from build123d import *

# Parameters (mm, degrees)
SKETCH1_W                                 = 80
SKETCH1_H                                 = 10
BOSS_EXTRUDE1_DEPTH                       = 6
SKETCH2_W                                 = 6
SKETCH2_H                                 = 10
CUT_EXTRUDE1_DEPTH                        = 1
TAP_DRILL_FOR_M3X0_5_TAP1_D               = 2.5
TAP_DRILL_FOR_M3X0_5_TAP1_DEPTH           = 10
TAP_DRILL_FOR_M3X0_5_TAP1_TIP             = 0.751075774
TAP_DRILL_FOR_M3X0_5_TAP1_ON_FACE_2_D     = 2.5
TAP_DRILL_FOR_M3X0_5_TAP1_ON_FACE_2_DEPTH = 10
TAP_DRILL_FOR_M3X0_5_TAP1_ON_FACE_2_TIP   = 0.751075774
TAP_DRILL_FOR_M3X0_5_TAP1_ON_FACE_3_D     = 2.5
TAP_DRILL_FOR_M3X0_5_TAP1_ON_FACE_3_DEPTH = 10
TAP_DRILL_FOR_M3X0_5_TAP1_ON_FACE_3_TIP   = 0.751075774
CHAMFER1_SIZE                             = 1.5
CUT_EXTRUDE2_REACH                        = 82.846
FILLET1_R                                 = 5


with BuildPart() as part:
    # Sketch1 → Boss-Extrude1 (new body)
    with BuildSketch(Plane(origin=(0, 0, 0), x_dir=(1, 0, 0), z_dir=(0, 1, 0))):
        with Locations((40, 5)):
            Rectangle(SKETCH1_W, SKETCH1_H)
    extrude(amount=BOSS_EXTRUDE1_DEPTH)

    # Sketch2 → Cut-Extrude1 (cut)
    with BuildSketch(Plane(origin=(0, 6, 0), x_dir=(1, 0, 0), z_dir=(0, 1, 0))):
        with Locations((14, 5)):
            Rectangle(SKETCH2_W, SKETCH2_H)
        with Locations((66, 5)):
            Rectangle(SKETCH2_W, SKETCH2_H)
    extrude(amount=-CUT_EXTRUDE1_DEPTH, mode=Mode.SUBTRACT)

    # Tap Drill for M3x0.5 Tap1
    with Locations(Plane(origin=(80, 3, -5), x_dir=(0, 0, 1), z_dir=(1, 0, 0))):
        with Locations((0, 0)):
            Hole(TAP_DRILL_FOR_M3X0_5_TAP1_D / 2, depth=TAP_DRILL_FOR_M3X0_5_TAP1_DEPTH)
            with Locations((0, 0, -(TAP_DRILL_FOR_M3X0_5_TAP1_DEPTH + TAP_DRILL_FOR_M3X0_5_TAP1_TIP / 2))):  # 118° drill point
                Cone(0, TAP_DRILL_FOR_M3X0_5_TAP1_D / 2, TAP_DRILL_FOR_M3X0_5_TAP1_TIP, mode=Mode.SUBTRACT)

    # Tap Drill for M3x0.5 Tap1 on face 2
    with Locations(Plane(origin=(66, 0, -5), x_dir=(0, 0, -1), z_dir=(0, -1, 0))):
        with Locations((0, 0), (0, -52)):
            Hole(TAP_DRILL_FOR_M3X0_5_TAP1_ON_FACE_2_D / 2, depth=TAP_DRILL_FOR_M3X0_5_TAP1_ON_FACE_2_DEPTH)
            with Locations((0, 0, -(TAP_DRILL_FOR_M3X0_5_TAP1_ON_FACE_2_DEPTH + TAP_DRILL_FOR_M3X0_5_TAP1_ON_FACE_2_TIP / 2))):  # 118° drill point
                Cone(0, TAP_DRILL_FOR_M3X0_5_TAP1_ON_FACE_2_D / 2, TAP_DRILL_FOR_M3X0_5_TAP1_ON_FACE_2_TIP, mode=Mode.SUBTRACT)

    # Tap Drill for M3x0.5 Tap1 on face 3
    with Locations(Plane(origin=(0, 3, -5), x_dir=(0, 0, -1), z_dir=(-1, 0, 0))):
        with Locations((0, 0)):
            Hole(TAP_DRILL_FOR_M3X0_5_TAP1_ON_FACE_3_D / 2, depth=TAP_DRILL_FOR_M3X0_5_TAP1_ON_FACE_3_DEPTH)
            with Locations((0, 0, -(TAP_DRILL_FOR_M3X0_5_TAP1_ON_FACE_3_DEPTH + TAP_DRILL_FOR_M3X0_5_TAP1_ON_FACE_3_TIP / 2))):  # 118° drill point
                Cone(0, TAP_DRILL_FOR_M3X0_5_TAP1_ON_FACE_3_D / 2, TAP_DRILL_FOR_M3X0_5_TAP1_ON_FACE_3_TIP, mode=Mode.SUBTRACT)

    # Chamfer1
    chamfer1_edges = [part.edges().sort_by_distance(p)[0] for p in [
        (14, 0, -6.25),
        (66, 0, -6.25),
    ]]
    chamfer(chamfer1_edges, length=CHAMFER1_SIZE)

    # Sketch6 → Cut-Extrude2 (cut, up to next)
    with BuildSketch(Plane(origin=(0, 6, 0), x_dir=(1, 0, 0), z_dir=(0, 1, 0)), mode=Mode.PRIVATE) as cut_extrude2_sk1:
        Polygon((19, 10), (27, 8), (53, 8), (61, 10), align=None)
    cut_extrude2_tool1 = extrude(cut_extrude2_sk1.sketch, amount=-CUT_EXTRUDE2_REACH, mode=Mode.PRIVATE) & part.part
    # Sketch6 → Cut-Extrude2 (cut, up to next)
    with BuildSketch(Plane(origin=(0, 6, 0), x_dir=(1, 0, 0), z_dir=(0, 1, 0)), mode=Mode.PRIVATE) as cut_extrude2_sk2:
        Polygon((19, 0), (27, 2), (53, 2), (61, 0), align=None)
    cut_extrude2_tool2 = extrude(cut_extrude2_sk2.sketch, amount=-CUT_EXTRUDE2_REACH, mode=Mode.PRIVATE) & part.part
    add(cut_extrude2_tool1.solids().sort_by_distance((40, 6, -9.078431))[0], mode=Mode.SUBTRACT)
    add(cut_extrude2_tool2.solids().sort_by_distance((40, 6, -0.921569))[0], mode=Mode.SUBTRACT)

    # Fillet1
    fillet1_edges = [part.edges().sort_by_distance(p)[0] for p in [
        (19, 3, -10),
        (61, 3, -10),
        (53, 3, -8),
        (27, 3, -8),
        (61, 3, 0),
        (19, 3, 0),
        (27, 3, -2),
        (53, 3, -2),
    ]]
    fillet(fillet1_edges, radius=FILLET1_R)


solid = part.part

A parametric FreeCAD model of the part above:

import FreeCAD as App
import Part
import Sketcher
from FreeCAD import Vector
Q = App.Units.Quantity


def edges_at(feature, points):
    """Names of the edges that pass closest to the given points."""
    edges = feature.Shape.Edges
    near = lambda p: min(range(len(edges)), key=lambda i: edges[i].distToShape(Part.Vertex(*p))[0])
    return sorted({f"Edge{near(p) + 1}" for p in points})

doc = App.newDocument("Part")
params = doc.addObject("Spreadsheet::Sheet", "Params")
for row, (alias, value) in enumerate([
    ("sketch1_width", "80 mm"),
    ("sketch1_height", "10 mm"),
    ("pad1_length", "6 mm"),
    ("sketch2_width", "6 mm"),
    ("sketch2_height", "10 mm"),
    ("pocket1_length", "1 mm"),
    ("sketch3_diameter", "2.5 mm"),
    ("hole_diameter", "2.5 mm"),
    ("hole_depth", "10 mm"),
    ("sketch4_diameter", "2.5 mm"),
    ("hole2_diameter", "2.5 mm"),
    ("hole2_depth", "10 mm"),
    ("sketch5_diameter", "2.5 mm"),
    ("hole3_diameter", "2.5 mm"),
    ("hole3_depth", "10 mm"),
    ("chamfer_size", "1.5 mm"),
    ("sketch6_width", "26 mm"),
    ("sketch6_width2", "42 mm"),
    ("sketch7_width", "42 mm"),
    ("sketch7_width2", "26 mm"),
    ("fillet_radius", "5 mm"),
], start=1):
    params.set(f"A{row}", alias)
    params.set(f"B{row}", "=" + value)
    params.setAlias(f"B{row}", alias)

body = doc.addObject("PartDesign::Body", "Body")

sketch1 = doc.addObject("Sketcher::SketchObject", "Sketch")
body.addObject(sketch1)
sketch1.AttachmentSupport = (doc.XZ_Plane, [""])
sketch1.MapMode = "FlatFace"
sketch1.addGeometry(Part.LineSegment(Vector(0, -10, 0), Vector(0, 0, 0)), False)
sketch1.addGeometry(Part.LineSegment(Vector(0, 0, 0), Vector(80, 0, 0)), False)
sketch1.addGeometry(Part.LineSegment(Vector(80, 0, 0), Vector(80, -10, 0)), False)
sketch1.addGeometry(Part.LineSegment(Vector(80, -10, 0), Vector(0, -10, 0)), False)
sketch1.addConstraint(Sketcher.Constraint("Coincident", 0, 2, 1, 1))
sketch1.addConstraint(Sketcher.Constraint("Coincident", 1, 2, 2, 1))
sketch1.addConstraint(Sketcher.Constraint("Coincident", 2, 2, 3, 1))
sketch1.addConstraint(Sketcher.Constraint("Coincident", 3, 2, 0, 1))
sketch1.addConstraint(Sketcher.Constraint("Vertical", 0))
sketch1.addConstraint(Sketcher.Constraint("Horizontal", 1))
sketch1.addConstraint(Sketcher.Constraint("Vertical", 2))
sketch1.addConstraint(Sketcher.Constraint("Horizontal", 3))
sketch1.addConstraint(Sketcher.Constraint("Coincident", 0, 2, -1, 1))
sketch1.addConstraint(Sketcher.Constraint("DistanceX", 1, 1, 1, 2, Q("80 mm")))
sketch1.addConstraint(Sketcher.Constraint("DistanceY", 0, 1, 0, 2, Q("10 mm")))
sketch1.setExpression("Constraints[9]", "Params.sketch1_width")
sketch1.setExpression("Constraints[10]", "Params.sketch1_height")
pad1 = doc.addObject("PartDesign::Pad", "Pad")
body.addObject(pad1)
pad1.Profile = sketch1
pad1.setExpression("Length", "Params.pad1_length")
pad1.Reversed = True

sketch2 = doc.addObject("Sketcher::SketchObject", "Sketch001")
body.addObject(sketch2)
sketch2.AttachmentSupport = (doc.XZ_Plane, [""])
sketch2.MapMode = "FlatFace"
sketch2.AttachmentOffset = App.Placement(Vector(0, 0, -6), App.Rotation())
sketch2.addGeometry(Part.LineSegment(Vector(11, -10, 0), Vector(11, 0, 0)), False)
sketch2.addGeometry(Part.LineSegment(Vector(11, 0, 0), Vector(17, 0, 0)), False)
sketch2.addGeometry(Part.LineSegment(Vector(17, 0, 0), Vector(17, -10, 0)), False)
sketch2.addGeometry(Part.LineSegment(Vector(17, -10, 0), Vector(11, -10, 0)), False)
sketch2.addGeometry(Part.LineSegment(Vector(63, -10, 0), Vector(63, 0, 0)), False)
sketch2.addGeometry(Part.LineSegment(Vector(63, 0, 0), Vector(69, 0, 0)), False)
sketch2.addGeometry(Part.LineSegment(Vector(69, 0, 0), Vector(69, -10, 0)), False)
sketch2.addGeometry(Part.LineSegment(Vector(69, -10, 0), Vector(63, -10, 0)), False)
sketch2.addConstraint(Sketcher.Constraint("Coincident", 0, 2, 1, 1))
sketch2.addConstraint(Sketcher.Constraint("Coincident", 1, 2, 2, 1))
sketch2.addConstraint(Sketcher.Constraint("Coincident", 2, 2, 3, 1))
sketch2.addConstraint(Sketcher.Constraint("Coincident", 3, 2, 0, 1))
sketch2.addConstraint(Sketcher.Constraint("Coincident", 4, 2, 5, 1))
sketch2.addConstraint(Sketcher.Constraint("Coincident", 5, 2, 6, 1))
sketch2.addConstraint(Sketcher.Constraint("Coincident", 6, 2, 7, 1))
sketch2.addConstraint(Sketcher.Constraint("Coincident", 7, 2, 4, 1))
sketch2.addConstraint(Sketcher.Constraint("Vertical", 0))
sketch2.addConstraint(Sketcher.Constraint("Horizontal", 1))
sketch2.addConstraint(Sketcher.Constraint("Vertical", 2))
sketch2.addConstraint(Sketcher.Constraint("Horizontal", 3))
sketch2.addConstraint(Sketcher.Constraint("Vertical", 4))
sketch2.addConstraint(Sketcher.Constraint("Horizontal", 5))
sketch2.addConstraint(Sketcher.Constraint("Vertical", 6))
sketch2.addConstraint(Sketcher.Constraint("Horizontal", 7))
sketch2.addConstraint(Sketcher.Constraint("PointOnObject", 0, 2, -1))
sketch2.addConstraint(Sketcher.Constraint("PointOnObject", 4, 2, -1))
sketch2.addConstraint(Sketcher.Constraint("Horizontal", 3, 2, 6, 2))
sketch2.addConstraint(Sketcher.Constraint("Equal", 3, 5))
sketch2.addConstraint(Sketcher.Constraint("DistanceX", 1, 1, 1, 2, Q("6 mm")))
sketch2.addConstraint(Sketcher.Constraint("DistanceY", 0, 1, 0, 2, Q("10 mm")))
sketch2.addConstraint(Sketcher.Constraint("DistanceX", -1, 1, 0, 2, Q("11 mm")))
sketch2.addConstraint(Sketcher.Constraint("DistanceX", -1, 1, 4, 2, Q("63 mm")))
sketch2.setExpression("Constraints[20]", "Params.sketch2_width")
sketch2.setExpression("Constraints[21]", "Params.sketch2_height")
pocket1 = doc.addObject("PartDesign::Pocket", "Pocket")
body.addObject(pocket1)
pocket1.Profile = sketch2
pocket1.setExpression("Length", "Params.pocket1_length")
pocket1.Reversed = True

sketch3 = doc.addObject("Sketcher::SketchObject", "Sketch002")
body.addObject(sketch3)
sketch3.AttachmentSupport = (doc.YZ_Plane, [""])
sketch3.MapMode = "FlatFace"
sketch3.AttachmentOffset = App.Placement(Vector(0, 0, 80), App.Rotation())
sketch3.addGeometry(Part.Circle(Vector(3, -5, 0), Vector(0, 0, 1), 1.2), False)
sketch3.addConstraint(Sketcher.Constraint("Diameter", 0, Q("2.5 mm")))
sketch3.addConstraint(Sketcher.Constraint("DistanceX", -1, 1, 0, 3, Q("3 mm")))
sketch3.addConstraint(Sketcher.Constraint("DistanceY", 0, 3, -1, 1, Q("5 mm")))
sketch3.setExpression("Constraints[0]", "Params.sketch3_diameter")
doc.recompute()
hole = doc.addObject("PartDesign::Hole", "Hole")
body.addObject(hole)
hole.Profile = sketch3
hole.ThreadType = "None"
hole.setExpression("Diameter", "Params.hole_diameter")
hole.DepthType = "Dimension"
hole.setExpression("Depth", "Params.hole_depth")
hole.DrillPoint = "Angled"
hole.DrillPointAngle = 118

sketch4 = doc.addObject("Sketcher::SketchObject", "Sketch003")
body.addObject(sketch4)
sketch4.AttachmentSupport = (doc.XZ_Plane, [""])
sketch4.MapMode = "FlatFace"
sketch4.addGeometry(Part.Circle(Vector(66, -5, 0), Vector(0, 0, 1), 1.2), False)
sketch4.addGeometry(Part.Circle(Vector(14, -5, 0), Vector(0, 0, 1), 1.2), False)
sketch4.addConstraint(Sketcher.Constraint("Equal", 0, 1))
sketch4.addConstraint(Sketcher.Constraint("Horizontal", 0, 3, 1, 3))
sketch4.addConstraint(Sketcher.Constraint("Diameter", 0, Q("2.5 mm")))
sketch4.addConstraint(Sketcher.Constraint("DistanceX", -1, 1, 0, 3, Q("66 mm")))
sketch4.addConstraint(Sketcher.Constraint("DistanceY", 0, 3, -1, 1, Q("5 mm")))
sketch4.addConstraint(Sketcher.Constraint("DistanceX", -1, 1, 1, 3, Q("14 mm")))
sketch4.setExpression("Constraints[2]", "Params.sketch4_diameter")
doc.recompute()
hole2 = doc.addObject("PartDesign::Hole", "Hole001")
body.addObject(hole2)
hole2.Profile = sketch4
hole2.ThreadType = "None"
hole2.setExpression("Diameter", "Params.hole2_diameter")
hole2.DepthType = "Dimension"
hole2.setExpression("Depth", "Params.hole2_depth")
hole2.DrillPoint = "Angled"
hole2.DrillPointAngle = 118

sketch5 = doc.addObject("Sketcher::SketchObject", "Sketch004")
body.addObject(sketch5)
sketch5.AttachmentSupport = (doc.YZ_Plane, [""])
sketch5.MapMode = "FlatFace"
sketch5.addGeometry(Part.Circle(Vector(3, -5, 0), Vector(0, 0, 1), 1.2), False)
sketch5.addConstraint(Sketcher.Constraint("Diameter", 0, Q("2.5 mm")))
sketch5.addConstraint(Sketcher.Constraint("DistanceX", -1, 1, 0, 3, Q("3 mm")))
sketch5.addConstraint(Sketcher.Constraint("DistanceY", 0, 3, -1, 1, Q("5 mm")))
sketch5.setExpression("Constraints[0]", "Params.sketch5_diameter")
doc.recompute()
hole3 = doc.addObject("PartDesign::Hole", "Hole002")
body.addObject(hole3)
hole3.Profile = sketch5
hole3.ThreadType = "None"
hole3.setExpression("Diameter", "Params.hole3_diameter")
hole3.DepthType = "Dimension"
hole3.setExpression("Depth", "Params.hole3_depth")
hole3.DrillPoint = "Angled"
hole3.DrillPointAngle = 118
hole3.Reversed = True
doc.recompute()

chamfer = doc.addObject("PartDesign::Chamfer", "Chamfer")
body.addObject(chamfer)
chamfer.Base = (hole3, edges_at(hole3, [(14, 0, -6.25), (66, 0, -6.25)]))
chamfer.setExpression("Size", "Params.chamfer_size")

sketch6 = doc.addObject("Sketcher::SketchObject", "Sketch005")
body.addObject(sketch6)
sketch6.AttachmentSupport = (doc.XZ_Plane, [""])
sketch6.MapMode = "FlatFace"
sketch6.AttachmentOffset = App.Placement(Vector(0, 0, -6), App.Rotation())
sketch6.addGeometry(Part.LineSegment(Vector(19, -10, 0), Vector(27, -8, 0)), False)
sketch6.addGeometry(Part.LineSegment(Vector(27, -8, 0), Vector(53, -8, 0)), False)
sketch6.addGeometry(Part.LineSegment(Vector(53, -8, 0), Vector(61, -10, 0)), False)
sketch6.addGeometry(Part.LineSegment(Vector(61, -10, 0), Vector(19, -10, 0)), False)
sketch6.addConstraint(Sketcher.Constraint("Coincident", 0, 2, 1, 1))
sketch6.addConstraint(Sketcher.Constraint("Coincident", 1, 2, 2, 1))
sketch6.addConstraint(Sketcher.Constraint("Coincident", 2, 2, 3, 1))
sketch6.addConstraint(Sketcher.Constraint("Coincident", 3, 2, 0, 1))
sketch6.addConstraint(Sketcher.Constraint("Horizontal", 1))
sketch6.addConstraint(Sketcher.Constraint("Horizontal", 3))
sketch6.addConstraint(Sketcher.Constraint("Equal", 0, 2))
sketch6.addConstraint(Sketcher.Constraint("DistanceX", 1, 1, 1, 2, Q("26 mm")))
sketch6.addConstraint(Sketcher.Constraint("DistanceX", 3, 2, 3, 1, Q("42 mm")))
sketch6.addConstraint(Sketcher.Constraint("DistanceX", -1, 1, 0, 2, Q("27 mm")))
sketch6.addConstraint(Sketcher.Constraint("DistanceY", 0, 2, -1, 1, Q("8 mm")))
sketch6.addConstraint(Sketcher.Constraint("DistanceY", 2, 2, -1, 1, Q("10 mm")))
sketch6.setExpression("Constraints[7]", "Params.sketch6_width")
sketch6.setExpression("Constraints[8]", "Params.sketch6_width2")
pocket2 = doc.addObject("PartDesign::Pocket", "Pocket001")
body.addObject(pocket2)
pocket2.Profile = sketch6
pocket2.Type = "UpToFirst"
pocket2.Reversed = True

sketch7 = doc.addObject("Sketcher::SketchObject", "Sketch006")
body.addObject(sketch7)
sketch7.AttachmentSupport = (doc.XZ_Plane, [""])
sketch7.MapMode = "FlatFace"
sketch7.AttachmentOffset = App.Placement(Vector(0, 0, -6), App.Rotation())
sketch7.addGeometry(Part.LineSegment(Vector(27, -2, 0), Vector(19, 0, 0)), False)
sketch7.addGeometry(Part.LineSegment(Vector(19, 0, 0), Vector(61, 0, 0)), False)
sketch7.addGeometry(Part.LineSegment(Vector(61, 0, 0), Vector(53, -2, 0)), False)
sketch7.addGeometry(Part.LineSegment(Vector(53, -2, 0), Vector(27, -2, 0)), False)
sketch7.addConstraint(Sketcher.Constraint("Coincident", 0, 2, 1, 1))
sketch7.addConstraint(Sketcher.Constraint("Coincident", 1, 2, 2, 1))
sketch7.addConstraint(Sketcher.Constraint("Coincident", 2, 2, 3, 1))
sketch7.addConstraint(Sketcher.Constraint("Coincident", 3, 2, 0, 1))
sketch7.addConstraint(Sketcher.Constraint("Horizontal", 1))
sketch7.addConstraint(Sketcher.Constraint("Horizontal", 3))
sketch7.addConstraint(Sketcher.Constraint("PointOnObject", 0, 2, -1))
sketch7.addConstraint(Sketcher.Constraint("Equal", 0, 2))
sketch7.addConstraint(Sketcher.Constraint("DistanceX", 1, 1, 1, 2, Q("42 mm")))
sketch7.addConstraint(Sketcher.Constraint("DistanceX", 3, 2, 3, 1, Q("26 mm")))
sketch7.addConstraint(Sketcher.Constraint("DistanceX", -1, 1, 0, 2, Q("19 mm")))
sketch7.addConstraint(Sketcher.Constraint("DistanceY", 2, 2, -1, 1, Q("2 mm")))
sketch7.setExpression("Constraints[8]", "Params.sketch7_width")
sketch7.setExpression("Constraints[9]", "Params.sketch7_width2")
pocket3 = doc.addObject("PartDesign::Pocket", "Pocket002")
body.addObject(pocket3)
pocket3.Profile = sketch7
pocket3.Type = "UpToFirst"
pocket3.Reversed = True
doc.recompute()

fillet = doc.addObject("PartDesign::Fillet", "Fillet")
body.addObject(fillet)
fillet.Base = (pocket3, edges_at(pocket3, [
    (19, 3, -10),
    (61, 3, -10),
    (53, 3, -8),
    (27, 3, -8),
    (61, 3, 0),
    (19, 3, 0),
    (27, 3, -2),
    (53, 3, -2),
]))
fillet.setExpression("Radius", "Params.fillet_radius")

doc.recompute()
